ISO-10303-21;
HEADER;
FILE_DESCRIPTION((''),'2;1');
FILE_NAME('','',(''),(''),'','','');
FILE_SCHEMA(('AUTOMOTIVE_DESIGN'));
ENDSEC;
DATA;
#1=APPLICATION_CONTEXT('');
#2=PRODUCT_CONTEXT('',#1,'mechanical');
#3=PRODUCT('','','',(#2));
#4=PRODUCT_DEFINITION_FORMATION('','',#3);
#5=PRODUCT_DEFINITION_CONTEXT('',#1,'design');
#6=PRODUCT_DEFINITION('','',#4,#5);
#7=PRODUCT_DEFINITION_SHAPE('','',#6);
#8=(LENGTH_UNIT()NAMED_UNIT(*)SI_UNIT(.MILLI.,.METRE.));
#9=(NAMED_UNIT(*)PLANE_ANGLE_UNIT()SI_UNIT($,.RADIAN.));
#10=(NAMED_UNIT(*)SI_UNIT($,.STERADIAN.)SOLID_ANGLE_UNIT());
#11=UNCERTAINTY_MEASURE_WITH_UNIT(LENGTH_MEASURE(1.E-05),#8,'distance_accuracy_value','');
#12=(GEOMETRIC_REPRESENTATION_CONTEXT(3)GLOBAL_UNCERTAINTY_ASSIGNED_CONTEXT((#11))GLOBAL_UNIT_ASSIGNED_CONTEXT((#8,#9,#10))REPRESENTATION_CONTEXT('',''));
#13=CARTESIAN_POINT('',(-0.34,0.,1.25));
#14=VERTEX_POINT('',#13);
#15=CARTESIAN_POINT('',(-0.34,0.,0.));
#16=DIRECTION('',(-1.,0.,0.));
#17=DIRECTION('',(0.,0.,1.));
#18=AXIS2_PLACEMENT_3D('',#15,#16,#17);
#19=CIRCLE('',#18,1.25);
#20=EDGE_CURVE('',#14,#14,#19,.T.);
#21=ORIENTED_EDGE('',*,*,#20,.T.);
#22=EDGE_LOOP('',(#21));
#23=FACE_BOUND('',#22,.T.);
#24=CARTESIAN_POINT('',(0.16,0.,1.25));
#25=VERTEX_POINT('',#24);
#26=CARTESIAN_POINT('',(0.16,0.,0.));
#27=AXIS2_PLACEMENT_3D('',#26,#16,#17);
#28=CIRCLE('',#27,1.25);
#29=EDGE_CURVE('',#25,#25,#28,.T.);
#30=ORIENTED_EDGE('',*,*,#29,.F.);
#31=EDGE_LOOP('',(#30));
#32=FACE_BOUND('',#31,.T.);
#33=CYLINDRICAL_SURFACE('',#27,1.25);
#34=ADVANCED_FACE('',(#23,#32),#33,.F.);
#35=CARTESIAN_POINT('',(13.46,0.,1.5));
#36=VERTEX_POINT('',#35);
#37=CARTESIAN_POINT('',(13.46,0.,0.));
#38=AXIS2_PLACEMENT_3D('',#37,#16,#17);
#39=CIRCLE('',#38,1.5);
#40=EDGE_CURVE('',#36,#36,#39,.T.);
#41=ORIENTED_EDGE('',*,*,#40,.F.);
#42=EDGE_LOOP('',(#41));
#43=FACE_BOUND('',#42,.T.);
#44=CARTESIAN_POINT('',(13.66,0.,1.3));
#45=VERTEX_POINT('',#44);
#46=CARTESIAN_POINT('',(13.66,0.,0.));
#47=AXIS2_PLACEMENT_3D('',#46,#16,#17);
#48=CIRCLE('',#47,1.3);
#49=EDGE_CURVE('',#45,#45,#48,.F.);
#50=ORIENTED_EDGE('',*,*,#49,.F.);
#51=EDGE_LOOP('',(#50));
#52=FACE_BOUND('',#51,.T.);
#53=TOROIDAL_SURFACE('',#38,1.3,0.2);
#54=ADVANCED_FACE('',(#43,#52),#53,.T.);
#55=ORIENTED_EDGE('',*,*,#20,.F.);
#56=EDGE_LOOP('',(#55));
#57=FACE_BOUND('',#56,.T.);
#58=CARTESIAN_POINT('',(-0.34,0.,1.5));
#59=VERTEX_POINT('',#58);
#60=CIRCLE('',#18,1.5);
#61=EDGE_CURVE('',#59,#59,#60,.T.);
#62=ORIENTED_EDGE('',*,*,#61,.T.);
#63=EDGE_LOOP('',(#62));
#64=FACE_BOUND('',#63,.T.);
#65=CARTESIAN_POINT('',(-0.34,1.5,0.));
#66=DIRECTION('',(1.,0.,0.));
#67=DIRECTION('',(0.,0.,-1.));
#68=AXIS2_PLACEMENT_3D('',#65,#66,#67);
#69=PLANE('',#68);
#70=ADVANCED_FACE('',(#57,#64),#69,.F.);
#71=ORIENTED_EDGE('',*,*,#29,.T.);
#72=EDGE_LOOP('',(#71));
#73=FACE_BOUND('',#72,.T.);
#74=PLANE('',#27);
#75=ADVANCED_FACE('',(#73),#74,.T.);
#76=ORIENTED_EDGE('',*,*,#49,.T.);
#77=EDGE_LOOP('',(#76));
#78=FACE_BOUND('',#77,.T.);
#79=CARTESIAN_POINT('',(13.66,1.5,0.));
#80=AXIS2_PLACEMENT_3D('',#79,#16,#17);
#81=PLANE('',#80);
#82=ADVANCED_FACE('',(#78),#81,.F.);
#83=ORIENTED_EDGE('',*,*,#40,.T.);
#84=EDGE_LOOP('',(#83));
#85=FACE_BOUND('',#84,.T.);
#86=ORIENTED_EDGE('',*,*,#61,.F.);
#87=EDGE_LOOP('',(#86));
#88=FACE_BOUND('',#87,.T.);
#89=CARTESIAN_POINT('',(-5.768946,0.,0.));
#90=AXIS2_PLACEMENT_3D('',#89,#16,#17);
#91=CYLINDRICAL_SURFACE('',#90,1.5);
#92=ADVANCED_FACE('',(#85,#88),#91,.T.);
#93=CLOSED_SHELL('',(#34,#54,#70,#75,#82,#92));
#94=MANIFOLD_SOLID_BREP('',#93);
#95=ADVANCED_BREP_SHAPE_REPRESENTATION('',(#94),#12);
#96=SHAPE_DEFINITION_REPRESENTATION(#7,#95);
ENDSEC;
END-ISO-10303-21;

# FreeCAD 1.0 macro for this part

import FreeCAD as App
import Part
import Sketcher
from FreeCAD import Vector
Q = App.Units.Quantity


def edges_at(feature, points):
    """Names of the edges that pass closest to the given points."""
    edges = feature.Shape.Edges
    near = lambda p: min(range(len(edges)), key=lambda i: edges[i].distToShape(Part.Vertex(*p))[0])
    return sorted({f"Edge{near(p) + 1}" for p in points})


def add_polygon(sketch, points):
    """Adds a closed chain of lines whose ends are joined by coincident constraints."""
    first, n = sketch.GeometryCount, len(points)
    for a, b in zip(points, points[1:] + points[:1]):
        sketch.addGeometry(Part.LineSegment(App.Vector(*a, 0), App.Vector(*b, 0)), False)
    for i in range(n):
        sketch.addConstraint(Sketcher.Constraint("Coincident", first + i, 2, first + (i + 1) % n, 1))

doc = App.newDocument("Part")
body = doc.addObject("PartDesign::Body", "Body")

# Sketch on XY plane
sketch1 = body.newObject("Sketcher::SketchObject", "Sketch")
sketch1.AttachmentSupport = (doc.getObject("XY_Plane"), [""])
sketch1.MapMode = "FlatFace"
add_polygon(sketch1, [(-0.3, 1.5), (-0.3, 0), (13.7, 0), (13.7, 1.5)])  # lines 0-3
sketch1.addConstraint([
    Sketcher.Constraint("Vertical", 0),
    Sketcher.Constraint("Horizontal", 1),
    Sketcher.Constraint("Vertical", 2),
    Sketcher.Constraint("Horizontal", 3),
    Sketcher.Constraint("PointOnObject", 0, 2, -1),
    Sketcher.Constraint("DistanceX", 1, 1, 1, 2, Q("14 mm")),
    Sketcher.Constraint("DistanceY", 0, 2, 0, 1, Q("1.5 mm")),
    Sketcher.Constraint("DistanceX", 0, 2, -1, 1, Q("0.34 mm")),
])
revolution = body.newObject("PartDesign::Revolution", "Revolution")
revolution.Profile = sketch1
revolution.ReferenceAxis = (sketch1, ["H_Axis"])
revolution.Angle = 360
doc.recompute()

fillet = body.newObject("PartDesign::Fillet", "Fillet")
fillet.Base = (revolution, edges_at(revolution, [(13.66, 0, -1.5)]))
fillet.Radius = 0.2

# Sketch on YZ plane
sketch2 = body.newObject("Sketcher::SketchObject", "Sketch001")
sketch2.AttachmentSupport = (doc.getObject("YZ_Plane"), [""])
sketch2.MapMode = "FlatFace"
sketch2.AttachmentOffset = App.Placement(Vector(0, 0, -0.34), App.Rotation())
sketch2.addGeometry(Part.Circle(Vector(0, 0, 0), Vector(0, 0, 1), 1.2), False)
sketch2.addConstraint([
    Sketcher.Constraint("Coincident", 0, 3, -1, 1),
    Sketcher.Constraint("Diameter", 0, Q("2.5 mm")),
])
pocket1 = body.newObject("PartDesign::Pocket", "Pocket")
pocket1.Profile = sketch2
pocket1.Length = 0.5
pocket1.Reversed = True

doc.recompute()
